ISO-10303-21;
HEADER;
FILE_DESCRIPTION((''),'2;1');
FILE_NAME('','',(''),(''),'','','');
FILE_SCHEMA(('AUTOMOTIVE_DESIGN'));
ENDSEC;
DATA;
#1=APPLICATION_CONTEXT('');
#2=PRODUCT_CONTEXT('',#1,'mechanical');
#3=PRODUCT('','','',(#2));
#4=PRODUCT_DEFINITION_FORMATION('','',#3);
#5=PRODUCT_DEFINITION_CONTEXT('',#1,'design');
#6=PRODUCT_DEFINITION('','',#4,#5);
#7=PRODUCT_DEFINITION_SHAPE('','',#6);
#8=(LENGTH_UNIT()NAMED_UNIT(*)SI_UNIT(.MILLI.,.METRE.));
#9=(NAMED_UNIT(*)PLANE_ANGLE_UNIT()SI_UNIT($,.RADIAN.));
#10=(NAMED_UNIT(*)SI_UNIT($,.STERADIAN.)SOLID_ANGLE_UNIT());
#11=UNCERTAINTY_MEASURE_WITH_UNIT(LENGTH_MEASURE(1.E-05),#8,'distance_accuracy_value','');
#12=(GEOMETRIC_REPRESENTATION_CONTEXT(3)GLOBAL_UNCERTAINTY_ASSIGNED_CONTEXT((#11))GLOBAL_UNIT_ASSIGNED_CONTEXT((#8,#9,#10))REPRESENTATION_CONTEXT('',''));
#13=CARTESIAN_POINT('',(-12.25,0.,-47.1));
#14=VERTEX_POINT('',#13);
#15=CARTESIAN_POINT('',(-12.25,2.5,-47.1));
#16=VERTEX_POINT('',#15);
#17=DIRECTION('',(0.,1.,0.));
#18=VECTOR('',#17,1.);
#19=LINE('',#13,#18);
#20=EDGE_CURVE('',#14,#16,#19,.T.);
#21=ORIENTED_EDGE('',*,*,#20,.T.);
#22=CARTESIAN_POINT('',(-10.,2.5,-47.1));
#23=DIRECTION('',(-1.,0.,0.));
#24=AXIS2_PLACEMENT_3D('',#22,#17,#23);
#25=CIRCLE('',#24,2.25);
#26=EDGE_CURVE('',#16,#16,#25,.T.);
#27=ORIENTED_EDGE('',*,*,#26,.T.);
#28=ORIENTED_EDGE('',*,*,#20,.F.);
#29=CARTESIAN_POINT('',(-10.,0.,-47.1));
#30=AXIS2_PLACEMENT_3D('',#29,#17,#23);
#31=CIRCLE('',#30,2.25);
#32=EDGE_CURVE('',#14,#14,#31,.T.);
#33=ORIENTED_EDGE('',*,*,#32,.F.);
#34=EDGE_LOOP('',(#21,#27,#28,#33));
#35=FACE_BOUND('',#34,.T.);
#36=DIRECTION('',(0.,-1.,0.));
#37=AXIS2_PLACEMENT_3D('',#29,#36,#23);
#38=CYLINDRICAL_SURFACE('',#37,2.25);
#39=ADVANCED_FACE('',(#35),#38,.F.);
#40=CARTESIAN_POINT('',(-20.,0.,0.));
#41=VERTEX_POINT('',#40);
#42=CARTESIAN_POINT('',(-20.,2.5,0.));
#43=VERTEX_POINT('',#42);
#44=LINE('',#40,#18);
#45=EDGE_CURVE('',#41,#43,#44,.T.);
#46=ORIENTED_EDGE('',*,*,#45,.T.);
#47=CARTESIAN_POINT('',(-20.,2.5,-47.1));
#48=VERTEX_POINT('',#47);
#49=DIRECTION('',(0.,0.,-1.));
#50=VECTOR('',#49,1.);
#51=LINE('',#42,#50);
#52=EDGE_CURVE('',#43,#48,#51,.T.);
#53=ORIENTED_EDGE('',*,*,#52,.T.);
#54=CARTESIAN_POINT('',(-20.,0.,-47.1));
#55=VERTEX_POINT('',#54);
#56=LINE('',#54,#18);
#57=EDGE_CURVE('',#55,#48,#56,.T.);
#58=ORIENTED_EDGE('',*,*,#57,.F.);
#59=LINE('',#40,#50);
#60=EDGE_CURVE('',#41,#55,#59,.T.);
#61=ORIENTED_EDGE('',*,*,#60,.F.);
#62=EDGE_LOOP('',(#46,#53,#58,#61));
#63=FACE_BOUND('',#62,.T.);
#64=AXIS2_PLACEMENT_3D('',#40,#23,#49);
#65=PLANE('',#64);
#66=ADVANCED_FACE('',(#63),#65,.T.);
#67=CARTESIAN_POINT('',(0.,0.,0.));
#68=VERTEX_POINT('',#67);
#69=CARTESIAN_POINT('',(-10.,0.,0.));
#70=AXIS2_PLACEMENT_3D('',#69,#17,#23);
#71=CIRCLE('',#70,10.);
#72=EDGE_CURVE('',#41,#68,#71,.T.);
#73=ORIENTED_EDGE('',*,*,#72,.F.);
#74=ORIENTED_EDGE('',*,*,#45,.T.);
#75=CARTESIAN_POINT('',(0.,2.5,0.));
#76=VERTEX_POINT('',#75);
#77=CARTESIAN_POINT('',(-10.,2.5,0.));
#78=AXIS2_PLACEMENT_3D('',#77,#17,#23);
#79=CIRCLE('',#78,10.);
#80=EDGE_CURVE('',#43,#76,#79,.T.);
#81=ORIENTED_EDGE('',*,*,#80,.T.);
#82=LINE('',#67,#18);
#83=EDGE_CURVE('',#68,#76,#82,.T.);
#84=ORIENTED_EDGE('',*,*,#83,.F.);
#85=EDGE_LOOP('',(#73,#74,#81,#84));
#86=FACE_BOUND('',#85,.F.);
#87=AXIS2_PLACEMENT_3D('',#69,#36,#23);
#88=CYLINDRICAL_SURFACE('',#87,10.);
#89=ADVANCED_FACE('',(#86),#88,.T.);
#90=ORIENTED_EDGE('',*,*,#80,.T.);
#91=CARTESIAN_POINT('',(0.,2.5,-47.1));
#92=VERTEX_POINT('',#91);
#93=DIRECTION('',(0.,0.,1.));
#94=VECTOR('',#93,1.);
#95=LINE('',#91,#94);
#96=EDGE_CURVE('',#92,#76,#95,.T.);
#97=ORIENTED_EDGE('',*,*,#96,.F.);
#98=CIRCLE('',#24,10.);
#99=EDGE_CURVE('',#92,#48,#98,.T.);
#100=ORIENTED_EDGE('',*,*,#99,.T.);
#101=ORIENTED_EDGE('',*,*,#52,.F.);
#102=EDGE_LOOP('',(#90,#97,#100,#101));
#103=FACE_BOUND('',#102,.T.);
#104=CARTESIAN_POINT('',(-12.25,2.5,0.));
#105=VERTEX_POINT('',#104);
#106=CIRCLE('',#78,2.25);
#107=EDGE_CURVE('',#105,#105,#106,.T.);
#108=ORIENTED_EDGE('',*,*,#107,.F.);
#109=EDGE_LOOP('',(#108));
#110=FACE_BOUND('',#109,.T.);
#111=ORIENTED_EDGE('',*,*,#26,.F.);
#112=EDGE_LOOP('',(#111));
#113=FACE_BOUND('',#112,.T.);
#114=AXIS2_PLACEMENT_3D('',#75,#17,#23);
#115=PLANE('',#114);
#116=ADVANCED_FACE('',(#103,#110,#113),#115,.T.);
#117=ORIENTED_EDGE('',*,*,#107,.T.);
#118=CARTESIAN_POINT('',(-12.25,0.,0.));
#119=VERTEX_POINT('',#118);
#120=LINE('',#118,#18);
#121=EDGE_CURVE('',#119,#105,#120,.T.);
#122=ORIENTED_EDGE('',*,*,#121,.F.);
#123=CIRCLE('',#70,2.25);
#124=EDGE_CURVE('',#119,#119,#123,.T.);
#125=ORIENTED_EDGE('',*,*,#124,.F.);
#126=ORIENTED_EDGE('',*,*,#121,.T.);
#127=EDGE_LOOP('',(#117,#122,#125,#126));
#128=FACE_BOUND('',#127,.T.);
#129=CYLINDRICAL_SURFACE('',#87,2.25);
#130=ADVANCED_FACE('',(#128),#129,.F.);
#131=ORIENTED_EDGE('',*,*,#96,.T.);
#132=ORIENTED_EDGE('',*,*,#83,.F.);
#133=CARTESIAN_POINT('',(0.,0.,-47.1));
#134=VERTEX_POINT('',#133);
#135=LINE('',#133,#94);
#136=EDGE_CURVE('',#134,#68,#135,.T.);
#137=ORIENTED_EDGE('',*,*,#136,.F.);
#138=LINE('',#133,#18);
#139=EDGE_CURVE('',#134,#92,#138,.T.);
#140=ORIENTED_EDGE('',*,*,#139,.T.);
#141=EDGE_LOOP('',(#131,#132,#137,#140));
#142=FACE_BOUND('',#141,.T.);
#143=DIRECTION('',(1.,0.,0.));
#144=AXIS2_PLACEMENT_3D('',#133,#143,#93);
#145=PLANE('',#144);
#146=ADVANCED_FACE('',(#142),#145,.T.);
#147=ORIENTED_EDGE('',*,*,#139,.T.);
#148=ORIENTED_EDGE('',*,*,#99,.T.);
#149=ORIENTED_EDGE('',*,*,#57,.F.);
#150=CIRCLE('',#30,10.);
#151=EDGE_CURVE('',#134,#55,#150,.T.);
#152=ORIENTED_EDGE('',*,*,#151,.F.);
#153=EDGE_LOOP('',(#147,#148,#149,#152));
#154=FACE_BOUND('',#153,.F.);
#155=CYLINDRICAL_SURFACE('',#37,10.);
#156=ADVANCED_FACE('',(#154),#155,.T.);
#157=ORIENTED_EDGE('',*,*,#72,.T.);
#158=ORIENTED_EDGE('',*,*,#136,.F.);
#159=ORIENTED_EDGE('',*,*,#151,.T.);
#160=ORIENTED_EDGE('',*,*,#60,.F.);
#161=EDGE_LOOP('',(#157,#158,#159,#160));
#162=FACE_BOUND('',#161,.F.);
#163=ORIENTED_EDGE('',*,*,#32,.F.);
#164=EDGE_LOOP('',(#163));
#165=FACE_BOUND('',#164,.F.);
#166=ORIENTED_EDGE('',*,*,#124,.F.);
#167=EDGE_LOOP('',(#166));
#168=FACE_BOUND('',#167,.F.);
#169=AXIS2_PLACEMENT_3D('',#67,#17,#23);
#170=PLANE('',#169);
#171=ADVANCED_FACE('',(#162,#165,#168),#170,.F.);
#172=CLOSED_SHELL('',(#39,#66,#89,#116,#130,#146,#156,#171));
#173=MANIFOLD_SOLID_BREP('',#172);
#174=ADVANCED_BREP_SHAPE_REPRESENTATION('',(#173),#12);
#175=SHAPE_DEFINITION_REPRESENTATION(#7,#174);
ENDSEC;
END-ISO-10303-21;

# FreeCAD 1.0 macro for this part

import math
import FreeCAD as App
import Part
import Sketcher
from FreeCAD import Vector
Q = App.Units.Quantity

doc = App.newDocument("Part")
body = doc.addObject("PartDesign::Body", "Body")

# Sketch on XZ plane
sketch1 = doc.addObject("Sketcher::SketchObject", "Sketch")
body.addObject(sketch1)
sketch1.AttachmentSupport = (doc.XZ_Plane, [""])
sketch1.MapMode = "FlatFace"
sketch1.addGeometry([
    Part.ArcOfCircle(Part.Circle(Vector(-10, 0, 0), Vector(0, 0, 1), 10), math.radians(0), math.radians(180)),  # 0
    Part.LineSegment(Vector(0, 0, 0), Vector(0, -47.1, 0)),  # 1
    Part.ArcOfCircle(Part.Circle(Vector(-10, -47.1, 0), Vector(0, 0, 1), 10), math.radians(180), math.radians(360)),  # 2
    Part.LineSegment(Vector(-20, -47.1, 0), Vector(-20, 0, 0)),  # 3
    Part.Circle(Vector(-10, 0, 0), Vector(0, 0, 1), 2.2),  # 4
    Part.Circle(Vector(-10, -47.1, 0), Vector(0, 0, 1), 2.2),  # 5
], False)
sketch1.addConstraint([
    Sketcher.Constraint("Tangent", 0, 1, 1, 1),
    Sketcher.Constraint("Tangent", 1, 2, 2, 2),
    Sketcher.Constraint("Tangent", 2, 1, 3, 1),
    Sketcher.Constraint("Tangent", 3, 2, 0, 2),
    Sketcher.Constraint("Vertical", 1),
    Sketcher.Constraint("Vertical", 3),
    Sketcher.Constraint("Coincident", 0, 1, -1, 1),
    Sketcher.Constraint("Coincident", 4, 3, 0, 3),
    Sketcher.Constraint("Coincident", 5, 3, 2, 3),
    Sketcher.Constraint("Equal", 4, 5),
    Sketcher.Constraint("Radius", 0, Q("10 mm")),
    Sketcher.Constraint("Diameter", 4, Q("4.5 mm")),
    Sketcher.Constraint("DistanceY", 1, 2, 1, 1, Q("47.1 mm")),
])
pad1 = doc.addObject("PartDesign::Pad", "Pad")
body.addObject(pad1)
pad1.Profile = sketch1
pad1.Length = 2.5
pad1.Reversed = True

doc.recompute()
